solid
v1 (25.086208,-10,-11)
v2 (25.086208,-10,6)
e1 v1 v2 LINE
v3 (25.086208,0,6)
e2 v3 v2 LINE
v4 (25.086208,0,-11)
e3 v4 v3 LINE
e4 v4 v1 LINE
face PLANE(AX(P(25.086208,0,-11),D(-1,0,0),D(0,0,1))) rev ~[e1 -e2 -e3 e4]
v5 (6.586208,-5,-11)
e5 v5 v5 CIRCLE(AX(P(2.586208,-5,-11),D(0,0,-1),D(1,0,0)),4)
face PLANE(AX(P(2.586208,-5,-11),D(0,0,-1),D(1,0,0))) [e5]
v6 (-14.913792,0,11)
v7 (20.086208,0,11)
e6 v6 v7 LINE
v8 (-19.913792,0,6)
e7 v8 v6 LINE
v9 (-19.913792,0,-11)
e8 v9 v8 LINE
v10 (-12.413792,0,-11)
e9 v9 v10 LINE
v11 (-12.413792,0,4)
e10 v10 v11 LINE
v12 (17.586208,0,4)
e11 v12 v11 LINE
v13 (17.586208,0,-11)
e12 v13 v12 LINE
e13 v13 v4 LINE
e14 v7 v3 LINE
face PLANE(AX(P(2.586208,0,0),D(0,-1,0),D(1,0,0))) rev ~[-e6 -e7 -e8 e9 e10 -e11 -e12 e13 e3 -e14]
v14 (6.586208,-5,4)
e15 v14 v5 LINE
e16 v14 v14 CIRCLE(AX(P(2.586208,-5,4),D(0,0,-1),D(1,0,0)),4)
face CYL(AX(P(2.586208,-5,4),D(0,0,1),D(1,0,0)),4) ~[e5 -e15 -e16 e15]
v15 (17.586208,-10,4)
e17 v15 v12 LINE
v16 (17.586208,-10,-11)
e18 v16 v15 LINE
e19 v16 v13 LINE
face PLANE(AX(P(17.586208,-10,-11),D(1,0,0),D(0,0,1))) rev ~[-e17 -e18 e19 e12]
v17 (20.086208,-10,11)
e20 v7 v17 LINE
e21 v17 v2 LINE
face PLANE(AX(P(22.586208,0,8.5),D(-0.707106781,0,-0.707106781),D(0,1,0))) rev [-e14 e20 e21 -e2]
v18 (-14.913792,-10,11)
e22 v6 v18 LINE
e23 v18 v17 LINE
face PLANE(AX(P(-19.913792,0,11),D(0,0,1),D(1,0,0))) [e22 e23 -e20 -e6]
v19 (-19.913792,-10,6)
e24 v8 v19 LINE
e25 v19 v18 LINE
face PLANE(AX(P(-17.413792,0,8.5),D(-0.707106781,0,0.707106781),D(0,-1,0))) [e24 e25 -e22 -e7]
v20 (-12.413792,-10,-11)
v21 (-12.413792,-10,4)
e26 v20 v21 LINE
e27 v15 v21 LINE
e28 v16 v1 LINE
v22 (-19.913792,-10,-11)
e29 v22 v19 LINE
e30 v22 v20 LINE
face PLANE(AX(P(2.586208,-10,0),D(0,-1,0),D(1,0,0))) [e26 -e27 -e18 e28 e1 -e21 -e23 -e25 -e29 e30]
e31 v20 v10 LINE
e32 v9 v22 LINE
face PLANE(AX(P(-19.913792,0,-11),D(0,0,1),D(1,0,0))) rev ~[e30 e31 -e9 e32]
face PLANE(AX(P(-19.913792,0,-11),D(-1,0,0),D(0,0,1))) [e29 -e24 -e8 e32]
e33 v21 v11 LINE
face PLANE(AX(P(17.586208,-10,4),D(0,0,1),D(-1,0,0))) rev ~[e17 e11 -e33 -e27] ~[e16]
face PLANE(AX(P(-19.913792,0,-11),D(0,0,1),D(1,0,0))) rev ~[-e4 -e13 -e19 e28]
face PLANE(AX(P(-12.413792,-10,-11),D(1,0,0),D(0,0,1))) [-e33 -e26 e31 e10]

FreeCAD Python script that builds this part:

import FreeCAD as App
import Part
import Sketcher

V = App.Vector
Q = App.Units.Quantity


def edges_at(feature, points):
    """Names of the edges that pass closest to the given points."""
    edges = feature.Shape.Edges
    near = lambda p: min(range(len(edges)), key=lambda i: edges[i].distToShape(Part.Vertex(*p))[0])
    return sorted({f"Edge{near(p) + 1}" for p in points})

doc = App.newDocument("Part")
params = doc.addObject("Spreadsheet::Sheet", "Params")
for row, (alias, value) in enumerate([
    ("sketch1_width", "45 mm"),
    ("sketch1_height", "22 mm"),
    ("pad1_length", "10 mm"),
    ("sketch2_width", "30 mm"),
    ("sketch2_height", "15 mm"),
    ("pocket1_length", "25 mm"),
    ("chamfer_size", "5 mm"),
    ("sketch3_diameter", "8 mm"),
    ("pad2_length", "15 mm"),
], start=1):
    params.set(f"A{row}", alias)
    params.set(f"B{row}", "=" + value)
    params.setAlias(f"B{row}", alias)

body = doc.addObject("PartDesign::Body", "Body")

# Sketch on XZ plane
sketch1 = doc.addObject("Sketcher::SketchObject", "Sketch")
body.addObject(sketch1)
sketch1.AttachmentSupport = (doc.XZ_Plane, [""])
sketch1.MapMode = "FlatFace"
sketch1.addGeometry(Part.LineSegment(V(-20, 11, 0), V(-20, -11, 0)), False)
sketch1.addGeometry(Part.LineSegment(V(-20, -11, 0), V(25, -11, 0)), False)
sketch1.addGeometry(Part.LineSegment(V(25, -11, 0), V(25, 11, 0)), False)
sketch1.addGeometry(Part.LineSegment(V(25, 11, 0), V(-20, 11, 0)), False)
sketch1.addConstraint(Sketcher.Constraint("Coincident", 0, 2, 1, 1))
sketch1.addConstraint(Sketcher.Constraint("Coincident", 1, 2, 2, 1))
sketch1.addConstraint(Sketcher.Constraint("Coincident", 2, 2, 3, 1))
sketch1.addConstraint(Sketcher.Constraint("Coincident", 3, 2, 0, 1))
sketch1.addConstraint(Sketcher.Constraint("Vertical", 0))
sketch1.addConstraint(Sketcher.Constraint("Horizontal", 1))
sketch1.addConstraint(Sketcher.Constraint("Vertical", 2))
sketch1.addConstraint(Sketcher.Constraint("Horizontal", 3))
sketch1.addConstraint(Sketcher.Constraint("DistanceX", 1, 1, 1, 2, Q("45 mm")))
sketch1.addConstraint(Sketcher.Constraint("DistanceY", 0, 2, 0, 1, Q("22 mm")))
sketch1.addConstraint(Sketcher.Constraint("DistanceY", 0, 2, -1, 1, Q("11 mm")))
sketch1.addConstraint(Sketcher.Constraint("DistanceX", 0, 2, -1, 1, Q("19.913792 mm")))
sketch1.setExpression("Constraints[8]", "Params.sketch1_width")
sketch1.setExpression("Constraints[9]", "Params.sketch1_height")
pad1 = doc.addObject("PartDesign::Pad", "Pad")
body.addObject(pad1)
pad1.Profile = sketch1
pad1.setExpression("Length", "Params.pad1_length")

# Sketch on XZ plane
sketch2 = doc.addObject("Sketcher::SketchObject", "Sketch001")
body.addObject(sketch2)
sketch2.AttachmentSupport = (doc.XZ_Plane, [""])
sketch2.MapMode = "FlatFace"
sketch2.AttachmentOffset = App.Placement(V(0, 0, 10), App.Rotation())
sketch2.addGeometry(Part.LineSegment(V(-12, 4, 0), V(-12, -11, 0)), False)
sketch2.addGeometry(Part.LineSegment(V(-12, -11, 0), V(18, -11, 0)), False)
sketch2.addGeometry(Part.LineSegment(V(18, -11, 0), V(18, 4, 0)), False)
sketch2.addGeometry(Part.LineSegment(V(18, 4, 0), V(-12, 4, 0)), False)
sketch2.addConstraint(Sketcher.Constraint("Coincident", 0, 2, 1, 1))
sketch2.addConstraint(Sketcher.Constraint("Coincident", 1, 2, 2, 1))
sketch2.addConstraint(Sketcher.Constraint("Coincident", 2, 2, 3, 1))
sketch2.addConstraint(Sketcher.Constraint("Coincident", 3, 2, 0, 1))
sketch2.addConstraint(Sketcher.Constraint("Vertical", 0))
sketch2.addConstraint(Sketcher.Constraint("Horizontal", 1))
sketch2.addConstraint(Sketcher.Constraint("Vertical", 2))
sketch2.addConstraint(Sketcher.Constraint("Horizontal", 3))
sketch2.addConstraint(Sketcher.Constraint("DistanceX", 1, 1, 1, 2, Q("30 mm")))
sketch2.addConstraint(Sketcher.Constraint("DistanceY", 0, 2, 0, 1, Q("15 mm")))
sketch2.addConstraint(Sketcher.Constraint("DistanceY", 0, 2, -1, 1, Q("11 mm")))
sketch2.addConstraint(Sketcher.Constraint("DistanceX", 0, 2, -1, 1, Q("12.413792 mm")))
sketch2.setExpression("Constraints[8]", "Params.sketch2_width")
sketch2.setExpression("Constraints[9]", "Params.sketch2_height")
pocket1 = doc.addObject("PartDesign::Pocket", "Pocket")
body.addObject(pocket1)
pocket1.Profile = sketch2
pocket1.setExpression("Length", "Params.pocket1_length")
doc.recompute()

chamfer = doc.addObject("PartDesign::Chamfer", "Chamfer")
body.addObject(chamfer)
chamfer.Base = (pocket1, edges_at(pocket1, [(-19.914, -5, 11), (25.086, -5, 11)]))
chamfer.setExpression("Size", "Params.chamfer_size")

# Sketch on XY plane
sketch3 = doc.addObject("Sketcher::SketchObject", "Sketch002")
body.addObject(sketch3)
sketch3.AttachmentSupport = (doc.XY_Plane, [""])
sketch3.MapMode = "FlatFace"
sketch3.AttachmentOffset = App.Placement(V(0, 0, 4), App.Rotation())
sketch3.addGeometry(Part.Circle(V(2.6, -5, 0), V(0, 0, 1), 4), False)
sketch3.addConstraint(Sketcher.Constraint("Diameter", 0, Q("8 mm")))
sketch3.addConstraint(Sketcher.Constraint("DistanceY", 0, 3, -1, 1, Q("5 mm")))
sketch3.addConstraint(Sketcher.Constraint("DistanceX", -1, 1, 0, 3, Q("2.586208 mm")))
sketch3.setExpression("Constraints[0]", "Params.sketch3_diameter")
pad2 = doc.addObject("PartDesign::Pad", "Pad001")
body.addObject(pad2)
pad2.Profile = sketch3
pad2.setExpression("Length", "Params.pad2_length")
pad2.Reversed = True

doc.recompute()
